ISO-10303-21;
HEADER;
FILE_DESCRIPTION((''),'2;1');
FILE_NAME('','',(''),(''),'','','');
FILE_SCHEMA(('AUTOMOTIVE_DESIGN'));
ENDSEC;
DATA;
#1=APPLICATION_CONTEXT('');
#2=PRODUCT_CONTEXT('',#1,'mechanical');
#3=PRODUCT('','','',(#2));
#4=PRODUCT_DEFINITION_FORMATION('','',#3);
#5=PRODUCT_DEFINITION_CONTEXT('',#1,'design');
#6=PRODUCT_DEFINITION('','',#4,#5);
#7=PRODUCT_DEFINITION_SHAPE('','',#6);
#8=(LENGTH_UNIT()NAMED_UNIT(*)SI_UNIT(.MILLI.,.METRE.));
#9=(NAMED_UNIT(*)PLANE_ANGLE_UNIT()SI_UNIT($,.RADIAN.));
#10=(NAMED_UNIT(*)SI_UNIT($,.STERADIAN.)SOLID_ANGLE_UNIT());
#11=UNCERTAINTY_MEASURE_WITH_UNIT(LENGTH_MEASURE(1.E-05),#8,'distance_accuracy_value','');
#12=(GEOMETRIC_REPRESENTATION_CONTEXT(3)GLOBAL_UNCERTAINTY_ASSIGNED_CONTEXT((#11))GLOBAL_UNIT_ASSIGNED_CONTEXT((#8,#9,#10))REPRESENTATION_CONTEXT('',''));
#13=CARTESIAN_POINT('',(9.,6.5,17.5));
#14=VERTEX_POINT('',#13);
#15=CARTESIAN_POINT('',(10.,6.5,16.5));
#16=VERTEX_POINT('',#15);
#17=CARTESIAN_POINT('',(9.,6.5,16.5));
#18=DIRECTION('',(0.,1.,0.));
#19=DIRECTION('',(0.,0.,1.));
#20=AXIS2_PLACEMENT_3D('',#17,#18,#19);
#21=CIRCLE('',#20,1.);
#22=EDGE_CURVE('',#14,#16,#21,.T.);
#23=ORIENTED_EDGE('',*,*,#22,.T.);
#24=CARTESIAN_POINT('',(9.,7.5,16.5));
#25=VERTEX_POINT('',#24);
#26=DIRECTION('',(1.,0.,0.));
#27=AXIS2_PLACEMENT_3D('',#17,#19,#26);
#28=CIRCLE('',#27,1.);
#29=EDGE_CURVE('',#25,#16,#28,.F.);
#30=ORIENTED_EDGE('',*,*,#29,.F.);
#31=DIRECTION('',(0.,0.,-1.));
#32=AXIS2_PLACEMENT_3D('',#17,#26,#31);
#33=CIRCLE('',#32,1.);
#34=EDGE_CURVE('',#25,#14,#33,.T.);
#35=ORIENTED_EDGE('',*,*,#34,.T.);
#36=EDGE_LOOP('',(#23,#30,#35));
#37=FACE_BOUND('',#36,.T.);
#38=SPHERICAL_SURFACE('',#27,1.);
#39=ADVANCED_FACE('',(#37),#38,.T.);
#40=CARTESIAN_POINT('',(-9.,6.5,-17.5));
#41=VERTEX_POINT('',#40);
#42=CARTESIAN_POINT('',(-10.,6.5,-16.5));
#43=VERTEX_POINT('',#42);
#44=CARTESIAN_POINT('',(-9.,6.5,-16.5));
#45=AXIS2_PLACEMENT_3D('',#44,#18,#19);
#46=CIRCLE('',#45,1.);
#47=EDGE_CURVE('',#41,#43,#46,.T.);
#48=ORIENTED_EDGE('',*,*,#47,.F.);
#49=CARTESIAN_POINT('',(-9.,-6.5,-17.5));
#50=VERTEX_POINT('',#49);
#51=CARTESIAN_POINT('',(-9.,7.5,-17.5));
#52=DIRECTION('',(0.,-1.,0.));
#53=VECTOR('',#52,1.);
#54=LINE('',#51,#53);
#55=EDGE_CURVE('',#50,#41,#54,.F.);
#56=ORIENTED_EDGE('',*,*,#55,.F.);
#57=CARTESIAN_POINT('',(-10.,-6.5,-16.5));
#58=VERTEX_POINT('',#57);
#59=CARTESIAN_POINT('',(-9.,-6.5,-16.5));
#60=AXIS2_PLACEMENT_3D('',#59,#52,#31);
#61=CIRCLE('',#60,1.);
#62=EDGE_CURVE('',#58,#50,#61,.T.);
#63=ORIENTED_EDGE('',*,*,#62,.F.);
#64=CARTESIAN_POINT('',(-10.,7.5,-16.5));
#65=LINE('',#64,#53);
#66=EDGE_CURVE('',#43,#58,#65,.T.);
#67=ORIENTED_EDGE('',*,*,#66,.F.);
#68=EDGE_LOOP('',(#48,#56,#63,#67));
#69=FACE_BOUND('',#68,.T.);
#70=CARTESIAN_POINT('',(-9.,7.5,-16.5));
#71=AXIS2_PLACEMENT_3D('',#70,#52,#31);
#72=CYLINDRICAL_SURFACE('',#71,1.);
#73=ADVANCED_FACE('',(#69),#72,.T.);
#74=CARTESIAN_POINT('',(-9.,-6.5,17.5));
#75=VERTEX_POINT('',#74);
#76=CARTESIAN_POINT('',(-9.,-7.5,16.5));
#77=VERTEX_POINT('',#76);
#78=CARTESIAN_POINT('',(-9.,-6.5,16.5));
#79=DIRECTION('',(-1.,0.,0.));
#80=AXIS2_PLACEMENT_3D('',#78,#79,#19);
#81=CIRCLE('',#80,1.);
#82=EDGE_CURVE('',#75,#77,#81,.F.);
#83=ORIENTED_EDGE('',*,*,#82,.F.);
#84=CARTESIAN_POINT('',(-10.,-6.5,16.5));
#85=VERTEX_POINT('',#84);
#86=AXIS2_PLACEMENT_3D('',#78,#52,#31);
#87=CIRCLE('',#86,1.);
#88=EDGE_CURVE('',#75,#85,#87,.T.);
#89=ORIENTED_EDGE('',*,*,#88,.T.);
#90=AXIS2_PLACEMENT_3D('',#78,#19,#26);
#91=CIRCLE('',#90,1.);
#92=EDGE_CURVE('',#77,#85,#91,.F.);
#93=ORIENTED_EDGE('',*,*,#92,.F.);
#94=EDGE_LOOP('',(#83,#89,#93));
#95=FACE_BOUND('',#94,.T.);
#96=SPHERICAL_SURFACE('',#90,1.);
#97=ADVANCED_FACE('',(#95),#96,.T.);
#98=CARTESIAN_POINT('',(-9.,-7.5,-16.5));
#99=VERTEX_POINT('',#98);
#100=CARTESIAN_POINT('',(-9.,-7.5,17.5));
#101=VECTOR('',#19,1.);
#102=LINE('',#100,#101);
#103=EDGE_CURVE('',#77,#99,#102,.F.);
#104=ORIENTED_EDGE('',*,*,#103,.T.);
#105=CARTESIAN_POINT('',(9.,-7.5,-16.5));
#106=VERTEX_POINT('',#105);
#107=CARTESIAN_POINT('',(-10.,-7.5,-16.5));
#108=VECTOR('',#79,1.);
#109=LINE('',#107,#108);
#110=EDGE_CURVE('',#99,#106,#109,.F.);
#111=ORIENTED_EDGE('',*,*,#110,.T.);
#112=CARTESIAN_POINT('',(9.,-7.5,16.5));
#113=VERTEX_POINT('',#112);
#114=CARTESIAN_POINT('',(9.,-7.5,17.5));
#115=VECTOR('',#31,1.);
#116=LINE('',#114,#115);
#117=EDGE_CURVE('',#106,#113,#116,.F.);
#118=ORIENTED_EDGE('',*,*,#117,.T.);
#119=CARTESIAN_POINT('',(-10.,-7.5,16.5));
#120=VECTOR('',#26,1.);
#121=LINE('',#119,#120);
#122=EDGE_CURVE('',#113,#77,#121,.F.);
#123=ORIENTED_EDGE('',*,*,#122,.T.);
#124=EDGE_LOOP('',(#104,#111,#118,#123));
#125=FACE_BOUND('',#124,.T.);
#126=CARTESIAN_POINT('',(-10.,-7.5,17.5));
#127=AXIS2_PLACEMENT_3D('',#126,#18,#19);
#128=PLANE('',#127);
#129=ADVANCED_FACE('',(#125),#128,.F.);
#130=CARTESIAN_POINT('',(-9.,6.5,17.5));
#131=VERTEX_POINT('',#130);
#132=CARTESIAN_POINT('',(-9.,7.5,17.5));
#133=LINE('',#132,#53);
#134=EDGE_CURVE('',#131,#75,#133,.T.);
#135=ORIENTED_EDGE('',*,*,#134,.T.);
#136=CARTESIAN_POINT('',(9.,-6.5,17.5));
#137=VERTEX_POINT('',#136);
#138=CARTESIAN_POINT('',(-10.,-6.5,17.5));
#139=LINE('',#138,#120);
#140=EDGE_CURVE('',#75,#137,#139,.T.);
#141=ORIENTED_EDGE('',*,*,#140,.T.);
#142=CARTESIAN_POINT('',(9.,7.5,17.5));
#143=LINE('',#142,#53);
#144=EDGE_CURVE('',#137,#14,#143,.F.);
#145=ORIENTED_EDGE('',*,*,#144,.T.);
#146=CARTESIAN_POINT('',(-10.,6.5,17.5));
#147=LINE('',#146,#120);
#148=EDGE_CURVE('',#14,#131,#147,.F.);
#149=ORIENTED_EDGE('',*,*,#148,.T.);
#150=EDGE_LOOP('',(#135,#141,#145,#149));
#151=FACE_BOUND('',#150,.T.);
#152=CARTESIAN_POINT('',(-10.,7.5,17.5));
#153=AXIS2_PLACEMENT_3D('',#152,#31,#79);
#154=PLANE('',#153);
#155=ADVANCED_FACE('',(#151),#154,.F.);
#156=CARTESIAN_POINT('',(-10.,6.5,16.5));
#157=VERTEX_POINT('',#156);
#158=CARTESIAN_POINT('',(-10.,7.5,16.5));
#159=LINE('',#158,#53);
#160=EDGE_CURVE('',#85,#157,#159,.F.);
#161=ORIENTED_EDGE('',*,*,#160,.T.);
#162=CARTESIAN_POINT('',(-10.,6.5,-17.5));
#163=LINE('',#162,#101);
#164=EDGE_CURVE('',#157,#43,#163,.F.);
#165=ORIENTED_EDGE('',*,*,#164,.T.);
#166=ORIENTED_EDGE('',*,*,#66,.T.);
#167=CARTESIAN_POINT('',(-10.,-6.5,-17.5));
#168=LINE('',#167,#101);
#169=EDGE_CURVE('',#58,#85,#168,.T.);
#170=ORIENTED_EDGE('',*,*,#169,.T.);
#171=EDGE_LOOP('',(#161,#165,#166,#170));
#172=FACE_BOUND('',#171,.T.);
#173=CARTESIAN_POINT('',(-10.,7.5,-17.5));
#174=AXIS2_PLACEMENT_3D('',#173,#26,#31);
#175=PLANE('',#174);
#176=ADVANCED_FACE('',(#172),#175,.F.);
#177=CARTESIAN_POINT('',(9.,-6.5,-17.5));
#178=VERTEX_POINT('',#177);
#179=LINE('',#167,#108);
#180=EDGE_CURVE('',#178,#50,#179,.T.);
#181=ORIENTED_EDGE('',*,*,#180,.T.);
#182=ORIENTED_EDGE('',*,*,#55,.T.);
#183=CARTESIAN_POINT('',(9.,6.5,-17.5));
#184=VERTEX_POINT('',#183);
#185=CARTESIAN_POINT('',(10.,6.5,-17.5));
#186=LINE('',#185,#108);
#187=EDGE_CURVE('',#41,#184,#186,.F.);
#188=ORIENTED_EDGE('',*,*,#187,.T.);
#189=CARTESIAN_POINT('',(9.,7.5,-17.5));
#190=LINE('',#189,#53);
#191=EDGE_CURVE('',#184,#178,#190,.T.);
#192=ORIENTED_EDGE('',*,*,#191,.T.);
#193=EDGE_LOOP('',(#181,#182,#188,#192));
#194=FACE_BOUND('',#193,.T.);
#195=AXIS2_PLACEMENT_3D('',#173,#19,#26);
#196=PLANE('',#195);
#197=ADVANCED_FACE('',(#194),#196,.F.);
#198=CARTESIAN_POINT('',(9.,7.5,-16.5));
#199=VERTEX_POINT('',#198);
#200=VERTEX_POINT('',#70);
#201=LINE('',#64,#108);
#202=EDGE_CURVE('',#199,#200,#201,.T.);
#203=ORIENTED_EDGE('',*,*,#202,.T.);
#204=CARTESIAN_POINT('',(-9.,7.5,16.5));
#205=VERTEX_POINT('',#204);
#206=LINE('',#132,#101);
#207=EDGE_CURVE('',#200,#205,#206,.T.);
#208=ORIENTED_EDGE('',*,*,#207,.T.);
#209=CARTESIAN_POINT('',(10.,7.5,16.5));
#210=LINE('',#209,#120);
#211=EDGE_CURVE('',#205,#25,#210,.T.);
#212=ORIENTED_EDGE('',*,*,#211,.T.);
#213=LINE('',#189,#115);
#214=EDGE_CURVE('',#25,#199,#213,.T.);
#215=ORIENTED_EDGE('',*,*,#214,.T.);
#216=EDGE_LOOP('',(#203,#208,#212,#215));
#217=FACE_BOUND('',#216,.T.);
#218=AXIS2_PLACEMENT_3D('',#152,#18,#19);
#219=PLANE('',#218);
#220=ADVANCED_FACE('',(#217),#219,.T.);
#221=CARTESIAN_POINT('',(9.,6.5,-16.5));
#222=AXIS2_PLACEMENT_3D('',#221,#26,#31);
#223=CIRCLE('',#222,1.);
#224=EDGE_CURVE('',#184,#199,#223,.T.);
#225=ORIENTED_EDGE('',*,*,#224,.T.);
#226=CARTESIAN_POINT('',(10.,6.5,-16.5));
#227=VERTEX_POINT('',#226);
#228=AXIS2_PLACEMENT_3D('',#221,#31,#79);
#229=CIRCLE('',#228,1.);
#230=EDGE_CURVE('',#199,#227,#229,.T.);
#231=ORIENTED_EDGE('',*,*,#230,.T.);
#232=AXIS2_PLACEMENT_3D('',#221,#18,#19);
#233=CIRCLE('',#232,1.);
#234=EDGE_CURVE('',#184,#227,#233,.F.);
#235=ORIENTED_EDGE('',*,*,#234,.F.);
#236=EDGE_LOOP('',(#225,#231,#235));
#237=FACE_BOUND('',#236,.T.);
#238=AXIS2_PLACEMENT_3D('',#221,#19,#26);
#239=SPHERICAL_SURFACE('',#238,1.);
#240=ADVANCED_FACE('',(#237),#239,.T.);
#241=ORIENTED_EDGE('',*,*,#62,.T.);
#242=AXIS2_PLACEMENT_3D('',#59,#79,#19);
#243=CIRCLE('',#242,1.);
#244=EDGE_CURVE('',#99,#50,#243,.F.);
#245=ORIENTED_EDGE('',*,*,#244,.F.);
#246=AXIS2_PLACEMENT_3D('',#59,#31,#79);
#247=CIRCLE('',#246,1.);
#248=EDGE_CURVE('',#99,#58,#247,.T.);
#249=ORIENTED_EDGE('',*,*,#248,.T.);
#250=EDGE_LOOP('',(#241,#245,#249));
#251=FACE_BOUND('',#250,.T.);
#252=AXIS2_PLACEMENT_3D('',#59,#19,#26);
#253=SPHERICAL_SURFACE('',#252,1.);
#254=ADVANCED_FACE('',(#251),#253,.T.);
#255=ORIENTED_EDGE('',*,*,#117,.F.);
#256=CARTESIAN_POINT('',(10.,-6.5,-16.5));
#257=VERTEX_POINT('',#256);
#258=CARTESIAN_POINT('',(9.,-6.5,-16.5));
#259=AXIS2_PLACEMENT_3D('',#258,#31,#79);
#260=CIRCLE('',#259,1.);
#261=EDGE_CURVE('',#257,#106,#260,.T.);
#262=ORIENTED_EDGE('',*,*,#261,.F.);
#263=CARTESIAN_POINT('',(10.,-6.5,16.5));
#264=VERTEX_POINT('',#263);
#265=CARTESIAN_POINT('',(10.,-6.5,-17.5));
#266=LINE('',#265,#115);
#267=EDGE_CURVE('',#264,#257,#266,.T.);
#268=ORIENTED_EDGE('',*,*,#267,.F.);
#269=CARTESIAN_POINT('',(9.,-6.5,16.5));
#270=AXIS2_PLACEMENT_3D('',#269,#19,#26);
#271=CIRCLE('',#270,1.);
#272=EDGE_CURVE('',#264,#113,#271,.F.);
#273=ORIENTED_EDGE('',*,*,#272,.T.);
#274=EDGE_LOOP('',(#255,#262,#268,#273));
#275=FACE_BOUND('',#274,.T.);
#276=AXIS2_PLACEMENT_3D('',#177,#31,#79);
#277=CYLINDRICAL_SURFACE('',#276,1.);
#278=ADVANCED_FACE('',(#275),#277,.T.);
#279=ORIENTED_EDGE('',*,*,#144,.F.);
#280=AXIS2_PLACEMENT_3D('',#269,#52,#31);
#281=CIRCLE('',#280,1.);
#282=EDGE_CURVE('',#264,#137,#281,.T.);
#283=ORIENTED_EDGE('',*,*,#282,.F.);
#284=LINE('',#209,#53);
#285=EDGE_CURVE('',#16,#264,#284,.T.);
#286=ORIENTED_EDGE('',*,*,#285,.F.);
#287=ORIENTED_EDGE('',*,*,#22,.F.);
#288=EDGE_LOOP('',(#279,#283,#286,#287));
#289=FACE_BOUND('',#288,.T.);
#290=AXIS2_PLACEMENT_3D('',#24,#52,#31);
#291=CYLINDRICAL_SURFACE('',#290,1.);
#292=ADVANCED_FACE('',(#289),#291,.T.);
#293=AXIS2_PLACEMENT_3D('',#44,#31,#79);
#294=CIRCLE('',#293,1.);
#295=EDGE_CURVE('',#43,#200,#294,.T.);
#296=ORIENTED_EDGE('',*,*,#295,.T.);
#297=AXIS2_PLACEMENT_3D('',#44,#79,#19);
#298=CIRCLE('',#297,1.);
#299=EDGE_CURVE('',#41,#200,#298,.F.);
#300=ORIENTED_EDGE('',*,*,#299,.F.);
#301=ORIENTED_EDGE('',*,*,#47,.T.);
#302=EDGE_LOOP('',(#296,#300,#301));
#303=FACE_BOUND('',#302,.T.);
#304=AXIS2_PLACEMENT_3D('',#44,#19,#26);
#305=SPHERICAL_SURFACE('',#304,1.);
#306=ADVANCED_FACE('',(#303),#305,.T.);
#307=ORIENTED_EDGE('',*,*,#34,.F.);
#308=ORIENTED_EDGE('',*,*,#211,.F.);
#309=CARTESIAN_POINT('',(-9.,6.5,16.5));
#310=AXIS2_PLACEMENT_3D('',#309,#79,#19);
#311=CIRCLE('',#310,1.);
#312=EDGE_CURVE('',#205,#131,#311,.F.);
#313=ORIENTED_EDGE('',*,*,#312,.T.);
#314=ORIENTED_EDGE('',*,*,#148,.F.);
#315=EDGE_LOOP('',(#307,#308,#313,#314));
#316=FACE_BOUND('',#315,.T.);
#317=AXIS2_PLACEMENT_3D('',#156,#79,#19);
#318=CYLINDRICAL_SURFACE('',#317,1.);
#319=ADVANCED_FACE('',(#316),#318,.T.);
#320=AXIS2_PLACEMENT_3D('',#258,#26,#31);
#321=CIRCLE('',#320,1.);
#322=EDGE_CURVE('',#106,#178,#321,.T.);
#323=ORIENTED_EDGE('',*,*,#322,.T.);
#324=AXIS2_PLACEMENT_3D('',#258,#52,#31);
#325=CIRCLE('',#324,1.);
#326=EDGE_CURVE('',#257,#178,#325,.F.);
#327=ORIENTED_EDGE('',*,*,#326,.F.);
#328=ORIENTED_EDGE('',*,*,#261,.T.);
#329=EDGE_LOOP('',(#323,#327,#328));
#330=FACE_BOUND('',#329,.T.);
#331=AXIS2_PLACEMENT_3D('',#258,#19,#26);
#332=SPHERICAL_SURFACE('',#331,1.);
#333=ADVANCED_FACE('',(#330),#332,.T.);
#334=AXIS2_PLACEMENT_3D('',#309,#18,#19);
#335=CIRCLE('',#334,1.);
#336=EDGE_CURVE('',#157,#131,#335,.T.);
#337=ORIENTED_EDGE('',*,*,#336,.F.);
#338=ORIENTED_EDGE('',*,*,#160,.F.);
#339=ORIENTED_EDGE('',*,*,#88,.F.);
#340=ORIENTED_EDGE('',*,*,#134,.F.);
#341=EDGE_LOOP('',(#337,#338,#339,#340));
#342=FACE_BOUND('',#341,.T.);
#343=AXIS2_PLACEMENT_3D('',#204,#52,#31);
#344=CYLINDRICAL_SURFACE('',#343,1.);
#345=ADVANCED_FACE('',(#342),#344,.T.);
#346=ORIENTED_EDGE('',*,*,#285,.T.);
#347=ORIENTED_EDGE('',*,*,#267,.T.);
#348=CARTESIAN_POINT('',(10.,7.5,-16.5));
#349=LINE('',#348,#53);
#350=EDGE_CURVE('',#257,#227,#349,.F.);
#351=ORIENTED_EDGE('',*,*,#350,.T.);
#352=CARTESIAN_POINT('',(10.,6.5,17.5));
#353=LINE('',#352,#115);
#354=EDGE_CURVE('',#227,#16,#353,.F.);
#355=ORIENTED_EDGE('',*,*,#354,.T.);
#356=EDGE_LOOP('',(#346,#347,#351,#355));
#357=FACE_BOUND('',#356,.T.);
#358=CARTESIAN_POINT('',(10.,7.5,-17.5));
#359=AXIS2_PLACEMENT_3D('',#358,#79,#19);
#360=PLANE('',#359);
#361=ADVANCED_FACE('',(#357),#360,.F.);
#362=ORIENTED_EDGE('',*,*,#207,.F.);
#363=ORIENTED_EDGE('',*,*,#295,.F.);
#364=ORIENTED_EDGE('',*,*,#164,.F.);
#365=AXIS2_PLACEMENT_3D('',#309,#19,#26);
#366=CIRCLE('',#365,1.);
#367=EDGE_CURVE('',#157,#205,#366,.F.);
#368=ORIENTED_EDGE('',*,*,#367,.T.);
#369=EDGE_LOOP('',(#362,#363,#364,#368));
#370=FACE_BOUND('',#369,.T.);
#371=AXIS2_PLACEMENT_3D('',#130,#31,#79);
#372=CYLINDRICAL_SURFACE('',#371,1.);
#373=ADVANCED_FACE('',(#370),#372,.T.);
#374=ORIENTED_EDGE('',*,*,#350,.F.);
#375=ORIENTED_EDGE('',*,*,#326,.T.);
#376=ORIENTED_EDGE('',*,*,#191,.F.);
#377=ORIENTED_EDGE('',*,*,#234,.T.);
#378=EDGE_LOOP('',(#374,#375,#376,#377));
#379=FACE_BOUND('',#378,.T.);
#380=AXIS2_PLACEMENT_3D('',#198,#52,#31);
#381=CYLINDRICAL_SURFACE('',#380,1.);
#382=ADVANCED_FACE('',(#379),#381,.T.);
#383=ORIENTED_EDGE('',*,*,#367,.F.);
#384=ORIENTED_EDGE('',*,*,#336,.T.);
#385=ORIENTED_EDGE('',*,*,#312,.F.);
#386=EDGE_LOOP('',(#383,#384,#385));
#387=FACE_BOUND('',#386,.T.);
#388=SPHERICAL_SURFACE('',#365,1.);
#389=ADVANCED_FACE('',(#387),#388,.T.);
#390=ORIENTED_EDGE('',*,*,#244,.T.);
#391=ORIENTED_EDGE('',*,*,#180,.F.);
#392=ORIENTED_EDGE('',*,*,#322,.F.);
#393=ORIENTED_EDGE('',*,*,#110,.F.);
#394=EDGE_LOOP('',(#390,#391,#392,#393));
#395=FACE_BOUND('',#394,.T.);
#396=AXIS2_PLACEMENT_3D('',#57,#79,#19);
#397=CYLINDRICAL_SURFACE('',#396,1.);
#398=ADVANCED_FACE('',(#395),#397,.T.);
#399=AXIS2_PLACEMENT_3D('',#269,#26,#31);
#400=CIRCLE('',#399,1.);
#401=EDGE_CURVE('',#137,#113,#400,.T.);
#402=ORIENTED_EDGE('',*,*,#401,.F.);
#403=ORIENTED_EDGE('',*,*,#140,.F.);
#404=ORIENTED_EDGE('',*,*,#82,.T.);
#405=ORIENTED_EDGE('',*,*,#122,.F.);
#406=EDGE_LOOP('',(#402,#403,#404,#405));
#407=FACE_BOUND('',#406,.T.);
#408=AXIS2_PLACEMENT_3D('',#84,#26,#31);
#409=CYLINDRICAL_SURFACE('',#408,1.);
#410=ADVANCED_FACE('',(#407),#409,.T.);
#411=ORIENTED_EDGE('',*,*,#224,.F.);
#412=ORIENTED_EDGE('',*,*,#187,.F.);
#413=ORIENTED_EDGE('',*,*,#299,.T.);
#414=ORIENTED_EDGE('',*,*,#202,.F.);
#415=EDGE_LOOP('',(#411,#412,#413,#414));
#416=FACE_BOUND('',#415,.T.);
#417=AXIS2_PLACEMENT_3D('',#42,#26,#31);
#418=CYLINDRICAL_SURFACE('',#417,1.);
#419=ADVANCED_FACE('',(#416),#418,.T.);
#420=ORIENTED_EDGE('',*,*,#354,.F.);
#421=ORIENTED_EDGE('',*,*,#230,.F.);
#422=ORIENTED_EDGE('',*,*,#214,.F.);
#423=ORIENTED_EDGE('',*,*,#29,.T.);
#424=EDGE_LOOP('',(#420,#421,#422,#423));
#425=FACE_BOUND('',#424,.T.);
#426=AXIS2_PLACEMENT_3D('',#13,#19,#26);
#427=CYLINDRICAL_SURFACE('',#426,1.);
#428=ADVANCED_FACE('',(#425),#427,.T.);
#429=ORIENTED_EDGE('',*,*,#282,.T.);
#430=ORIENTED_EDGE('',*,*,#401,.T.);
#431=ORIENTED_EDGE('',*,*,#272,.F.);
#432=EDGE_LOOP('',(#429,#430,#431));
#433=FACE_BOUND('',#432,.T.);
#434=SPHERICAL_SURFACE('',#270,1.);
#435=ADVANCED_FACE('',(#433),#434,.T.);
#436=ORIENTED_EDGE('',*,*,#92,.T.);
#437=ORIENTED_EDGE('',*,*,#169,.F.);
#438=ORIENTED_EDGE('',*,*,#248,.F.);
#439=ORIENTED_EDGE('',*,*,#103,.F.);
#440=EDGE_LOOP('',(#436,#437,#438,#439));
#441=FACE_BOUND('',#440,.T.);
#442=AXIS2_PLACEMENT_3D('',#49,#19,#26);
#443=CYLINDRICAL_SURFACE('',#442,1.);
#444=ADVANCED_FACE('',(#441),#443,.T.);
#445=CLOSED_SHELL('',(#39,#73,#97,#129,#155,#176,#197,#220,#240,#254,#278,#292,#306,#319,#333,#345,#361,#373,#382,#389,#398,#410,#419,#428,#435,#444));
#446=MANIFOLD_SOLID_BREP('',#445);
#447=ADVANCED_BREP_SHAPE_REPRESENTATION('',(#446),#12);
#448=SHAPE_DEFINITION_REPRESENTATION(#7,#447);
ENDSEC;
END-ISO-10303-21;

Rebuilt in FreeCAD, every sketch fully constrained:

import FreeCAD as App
import Part
import Sketcher
from FreeCAD import Vector
Q = App.Units.Quantity

doc = App.newDocument("Part")
params = doc.addObject("Spreadsheet::Sheet", "Params")
for row, (alias, value) in enumerate([
    ("sketch1_width", "20 mm"),
    ("sketch1_height", "35 mm"),
    ("pad1_length", "15 mm"),
    ("fillet_radius", "1 mm"),
], start=1):
    params.set(f"A{row}", alias)
    params.set(f"B{row}", "=" + value)
    params.setAlias(f"B{row}", alias)

body = doc.addObject("PartDesign::Body", "Body")

sketch1 = body.newObject("Sketcher::SketchObject", "Sketch")
sketch1.AttachmentSupport = (doc.getObject("XZ_Plane"), [""])
sketch1.MapMode = "FlatFace"
sketch1.addGeometry(Part.LineSegment(Vector(-10, -18, 0), Vector(-10, 18, 0)), False)
sketch1.addGeometry(Part.LineSegment(Vector(-10, 18, 0), Vector(10, 18, 0)), False)
sketch1.addGeometry(Part.LineSegment(Vector(10, 18, 0), Vector(10, -18, 0)), False)
sketch1.addGeometry(Part.LineSegment(Vector(10, -18, 0), Vector(-10, -18, 0)), False)
sketch1.addConstraint(Sketcher.Constraint("Coincident", 0, 2, 1, 1))
sketch1.addConstraint(Sketcher.Constraint("Coincident", 1, 2, 2, 1))
sketch1.addConstraint(Sketcher.Constraint("Coincident", 2, 2, 3, 1))
sketch1.addConstraint(Sketcher.Constraint("Coincident", 3, 2, 0, 1))
sketch1.addConstraint(Sketcher.Constraint("Vertical", 0))
sketch1.addConstraint(Sketcher.Constraint("Horizontal", 1))
sketch1.addConstraint(Sketcher.Constraint("Vertical", 2))
sketch1.addConstraint(Sketcher.Constraint("Horizontal", 3))
sketch1.addConstraint(Sketcher.Constraint("Symmetric", 0, 2, 2, 2, -1, 1))
sketch1.addConstraint(Sketcher.Constraint("DistanceX", 1, 1, 1, 2, Q("20 mm")))
sketch1.addConstraint(Sketcher.Constraint("DistanceY", 0, 1, 0, 2, Q("35 mm")))
sketch1.setExpression("Constraints[9]", "Params.sketch1_width")
sketch1.setExpression("Constraints[10]", "Params.sketch1_height")
pad1 = body.newObject("PartDesign::Pad", "Pad")
pad1.Profile = sketch1
pad1.setExpression("Length", "Params.pad1_length")
pad1.Midplane = True
doc.recompute()

fillet = body.newObject("PartDesign::Fillet", "Fillet")
fillet.Base = (pad1, ["Edge1"])
fillet.UseAllEdges = True
fillet.setExpression("Radius", "Params.fillet_radius")

doc.recompute()
